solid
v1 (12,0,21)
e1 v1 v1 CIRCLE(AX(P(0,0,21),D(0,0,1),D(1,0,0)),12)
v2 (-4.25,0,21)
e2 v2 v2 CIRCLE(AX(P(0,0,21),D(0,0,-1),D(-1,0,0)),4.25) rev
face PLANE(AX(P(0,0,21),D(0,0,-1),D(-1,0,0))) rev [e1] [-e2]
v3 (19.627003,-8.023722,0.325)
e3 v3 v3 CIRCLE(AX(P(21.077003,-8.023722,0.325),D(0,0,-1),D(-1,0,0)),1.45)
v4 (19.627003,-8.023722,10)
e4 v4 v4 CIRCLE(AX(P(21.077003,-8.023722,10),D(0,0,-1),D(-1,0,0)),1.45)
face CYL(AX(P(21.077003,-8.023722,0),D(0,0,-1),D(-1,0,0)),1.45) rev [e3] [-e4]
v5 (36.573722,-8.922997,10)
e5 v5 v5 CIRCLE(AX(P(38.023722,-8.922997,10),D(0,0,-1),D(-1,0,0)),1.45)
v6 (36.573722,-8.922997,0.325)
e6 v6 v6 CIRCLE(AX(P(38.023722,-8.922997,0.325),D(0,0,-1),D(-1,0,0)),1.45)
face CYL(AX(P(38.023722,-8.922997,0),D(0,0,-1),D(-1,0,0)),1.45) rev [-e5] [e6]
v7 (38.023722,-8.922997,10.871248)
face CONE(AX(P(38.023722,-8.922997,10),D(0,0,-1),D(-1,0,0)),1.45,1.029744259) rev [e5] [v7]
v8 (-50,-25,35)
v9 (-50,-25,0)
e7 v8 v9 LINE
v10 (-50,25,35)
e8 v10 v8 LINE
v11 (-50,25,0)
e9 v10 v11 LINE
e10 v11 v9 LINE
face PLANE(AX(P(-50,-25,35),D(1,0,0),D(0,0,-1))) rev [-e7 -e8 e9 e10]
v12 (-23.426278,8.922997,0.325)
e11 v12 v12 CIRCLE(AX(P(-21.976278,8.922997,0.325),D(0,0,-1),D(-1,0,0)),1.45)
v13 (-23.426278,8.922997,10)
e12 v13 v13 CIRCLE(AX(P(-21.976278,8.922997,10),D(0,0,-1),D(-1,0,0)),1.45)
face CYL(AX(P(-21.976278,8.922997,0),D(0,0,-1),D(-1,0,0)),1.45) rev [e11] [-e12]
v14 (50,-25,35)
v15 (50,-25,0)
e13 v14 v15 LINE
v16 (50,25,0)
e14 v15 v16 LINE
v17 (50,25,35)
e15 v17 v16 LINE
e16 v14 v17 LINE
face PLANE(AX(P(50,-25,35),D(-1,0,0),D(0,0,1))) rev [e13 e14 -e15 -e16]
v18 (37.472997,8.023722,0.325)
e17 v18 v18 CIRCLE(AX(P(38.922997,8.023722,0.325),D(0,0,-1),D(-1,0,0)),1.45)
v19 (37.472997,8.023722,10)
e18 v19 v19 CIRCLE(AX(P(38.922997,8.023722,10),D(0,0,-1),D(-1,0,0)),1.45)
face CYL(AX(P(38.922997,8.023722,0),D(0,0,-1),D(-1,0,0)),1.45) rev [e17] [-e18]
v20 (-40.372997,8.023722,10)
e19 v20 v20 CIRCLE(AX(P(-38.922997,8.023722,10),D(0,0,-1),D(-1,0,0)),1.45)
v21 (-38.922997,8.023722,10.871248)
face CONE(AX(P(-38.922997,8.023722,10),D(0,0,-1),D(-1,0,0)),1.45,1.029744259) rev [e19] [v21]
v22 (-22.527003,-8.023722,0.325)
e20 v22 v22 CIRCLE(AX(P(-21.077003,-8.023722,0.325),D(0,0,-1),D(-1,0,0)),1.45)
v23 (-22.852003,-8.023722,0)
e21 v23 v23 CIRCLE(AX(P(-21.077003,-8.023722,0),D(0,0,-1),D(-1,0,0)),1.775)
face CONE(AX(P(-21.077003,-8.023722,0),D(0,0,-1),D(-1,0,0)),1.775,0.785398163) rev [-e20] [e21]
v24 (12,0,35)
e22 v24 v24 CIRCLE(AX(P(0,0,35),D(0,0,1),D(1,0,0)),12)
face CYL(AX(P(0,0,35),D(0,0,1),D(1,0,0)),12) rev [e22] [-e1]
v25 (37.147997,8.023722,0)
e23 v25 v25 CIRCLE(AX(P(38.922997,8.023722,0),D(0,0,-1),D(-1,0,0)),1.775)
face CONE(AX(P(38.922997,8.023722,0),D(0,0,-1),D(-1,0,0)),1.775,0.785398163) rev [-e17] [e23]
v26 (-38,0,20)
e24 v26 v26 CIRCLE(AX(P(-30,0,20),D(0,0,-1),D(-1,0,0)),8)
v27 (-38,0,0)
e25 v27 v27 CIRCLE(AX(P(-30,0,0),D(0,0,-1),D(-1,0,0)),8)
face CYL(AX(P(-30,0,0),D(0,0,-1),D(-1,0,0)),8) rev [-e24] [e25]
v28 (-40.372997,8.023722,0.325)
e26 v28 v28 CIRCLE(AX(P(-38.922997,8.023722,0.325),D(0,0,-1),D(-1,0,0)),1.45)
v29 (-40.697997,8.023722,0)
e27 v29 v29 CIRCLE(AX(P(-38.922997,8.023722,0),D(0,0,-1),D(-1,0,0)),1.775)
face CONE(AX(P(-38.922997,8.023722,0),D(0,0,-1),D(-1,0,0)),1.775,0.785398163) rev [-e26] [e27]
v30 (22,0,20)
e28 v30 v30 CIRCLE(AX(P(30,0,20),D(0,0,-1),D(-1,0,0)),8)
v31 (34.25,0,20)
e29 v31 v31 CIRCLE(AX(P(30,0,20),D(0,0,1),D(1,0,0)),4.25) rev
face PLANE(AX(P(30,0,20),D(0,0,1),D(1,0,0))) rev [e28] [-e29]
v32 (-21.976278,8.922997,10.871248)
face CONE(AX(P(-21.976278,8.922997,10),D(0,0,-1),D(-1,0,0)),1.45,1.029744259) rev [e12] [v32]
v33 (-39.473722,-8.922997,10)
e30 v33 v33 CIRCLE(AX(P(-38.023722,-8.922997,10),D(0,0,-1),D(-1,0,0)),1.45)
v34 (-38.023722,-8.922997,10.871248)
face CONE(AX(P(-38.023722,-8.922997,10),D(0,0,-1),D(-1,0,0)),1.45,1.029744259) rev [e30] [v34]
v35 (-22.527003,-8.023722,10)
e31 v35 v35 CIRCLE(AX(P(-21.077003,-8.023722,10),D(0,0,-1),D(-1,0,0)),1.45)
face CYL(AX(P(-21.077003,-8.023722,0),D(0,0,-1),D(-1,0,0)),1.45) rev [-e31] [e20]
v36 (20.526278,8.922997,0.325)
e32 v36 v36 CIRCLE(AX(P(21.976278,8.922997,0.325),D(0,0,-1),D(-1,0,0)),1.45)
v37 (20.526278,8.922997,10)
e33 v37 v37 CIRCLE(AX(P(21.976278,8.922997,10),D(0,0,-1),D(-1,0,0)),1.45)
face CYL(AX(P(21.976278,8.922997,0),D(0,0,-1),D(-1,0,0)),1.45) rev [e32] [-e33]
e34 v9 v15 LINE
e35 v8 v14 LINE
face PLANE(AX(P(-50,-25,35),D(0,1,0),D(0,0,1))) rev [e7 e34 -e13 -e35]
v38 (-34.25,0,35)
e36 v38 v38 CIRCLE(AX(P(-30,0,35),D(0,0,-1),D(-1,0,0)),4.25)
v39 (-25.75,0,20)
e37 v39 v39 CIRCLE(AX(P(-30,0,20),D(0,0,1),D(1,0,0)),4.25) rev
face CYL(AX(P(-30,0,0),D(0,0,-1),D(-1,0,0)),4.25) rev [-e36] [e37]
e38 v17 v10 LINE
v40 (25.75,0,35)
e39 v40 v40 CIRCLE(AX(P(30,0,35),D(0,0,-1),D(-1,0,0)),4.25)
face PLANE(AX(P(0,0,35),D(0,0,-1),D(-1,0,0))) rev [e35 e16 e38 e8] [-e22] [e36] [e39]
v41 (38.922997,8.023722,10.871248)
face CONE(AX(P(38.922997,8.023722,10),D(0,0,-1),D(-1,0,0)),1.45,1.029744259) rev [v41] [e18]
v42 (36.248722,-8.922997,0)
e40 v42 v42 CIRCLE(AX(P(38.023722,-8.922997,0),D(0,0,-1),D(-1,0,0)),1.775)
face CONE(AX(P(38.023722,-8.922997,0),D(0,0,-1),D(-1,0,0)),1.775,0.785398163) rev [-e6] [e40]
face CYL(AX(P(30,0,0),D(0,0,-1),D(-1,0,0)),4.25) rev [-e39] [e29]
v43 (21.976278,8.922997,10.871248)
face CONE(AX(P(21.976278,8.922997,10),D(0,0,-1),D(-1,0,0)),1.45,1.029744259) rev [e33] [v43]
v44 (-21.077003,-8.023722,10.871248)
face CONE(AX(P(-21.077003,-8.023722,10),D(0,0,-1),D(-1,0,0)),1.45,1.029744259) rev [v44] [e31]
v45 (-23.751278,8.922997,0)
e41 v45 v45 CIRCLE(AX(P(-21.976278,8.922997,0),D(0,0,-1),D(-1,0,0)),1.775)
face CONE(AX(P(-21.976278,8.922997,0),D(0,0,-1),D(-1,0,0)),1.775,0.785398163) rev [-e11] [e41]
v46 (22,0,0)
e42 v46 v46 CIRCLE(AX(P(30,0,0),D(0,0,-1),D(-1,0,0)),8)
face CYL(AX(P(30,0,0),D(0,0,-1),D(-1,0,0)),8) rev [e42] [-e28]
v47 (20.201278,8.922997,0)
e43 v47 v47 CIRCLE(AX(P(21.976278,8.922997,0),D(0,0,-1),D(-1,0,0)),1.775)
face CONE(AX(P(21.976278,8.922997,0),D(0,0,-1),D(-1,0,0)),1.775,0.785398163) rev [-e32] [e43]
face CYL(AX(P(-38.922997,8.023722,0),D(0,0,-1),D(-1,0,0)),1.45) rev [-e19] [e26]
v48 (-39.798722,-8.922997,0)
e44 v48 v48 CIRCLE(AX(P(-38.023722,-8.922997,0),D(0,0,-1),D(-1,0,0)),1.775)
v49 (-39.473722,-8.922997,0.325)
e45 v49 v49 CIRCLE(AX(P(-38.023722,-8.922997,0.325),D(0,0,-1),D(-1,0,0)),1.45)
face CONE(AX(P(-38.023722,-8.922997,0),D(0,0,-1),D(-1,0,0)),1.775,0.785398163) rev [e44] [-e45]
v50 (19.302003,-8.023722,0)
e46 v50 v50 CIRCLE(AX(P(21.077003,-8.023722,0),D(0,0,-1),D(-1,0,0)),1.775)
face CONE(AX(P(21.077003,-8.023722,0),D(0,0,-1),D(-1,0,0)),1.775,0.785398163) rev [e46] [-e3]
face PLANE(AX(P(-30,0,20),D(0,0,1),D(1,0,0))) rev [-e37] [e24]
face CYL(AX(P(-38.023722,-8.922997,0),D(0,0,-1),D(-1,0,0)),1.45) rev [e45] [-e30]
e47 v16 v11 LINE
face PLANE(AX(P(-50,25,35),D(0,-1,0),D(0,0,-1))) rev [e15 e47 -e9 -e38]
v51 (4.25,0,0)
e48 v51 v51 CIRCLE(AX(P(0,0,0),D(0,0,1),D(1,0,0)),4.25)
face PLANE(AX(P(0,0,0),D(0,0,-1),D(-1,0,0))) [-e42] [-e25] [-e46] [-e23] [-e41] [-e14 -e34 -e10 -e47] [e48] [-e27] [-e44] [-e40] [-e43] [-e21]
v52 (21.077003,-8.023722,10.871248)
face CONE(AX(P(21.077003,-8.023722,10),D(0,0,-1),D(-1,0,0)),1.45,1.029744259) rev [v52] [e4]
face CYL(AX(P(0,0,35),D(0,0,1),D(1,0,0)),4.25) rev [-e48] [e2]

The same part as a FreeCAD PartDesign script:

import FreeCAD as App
import Part
import Sketcher
Q = App.Units.Quantity


def add_polygon(sketch, points):
    """Adds a closed chain of lines whose ends are joined by coincident constraints."""
    first, n = sketch.GeometryCount, len(points)
    for a, b in zip(points, points[1:] + points[:1]):
        sketch.addGeometry(Part.LineSegment(App.Vector(*a, 0), App.Vector(*b, 0)), False)
    for i in range(n):
        sketch.addConstraint(Sketcher.Constraint("Coincident", first + i, 2, first + (i + 1) % n, 1))

doc = App.newDocument("Part")
body = doc.addObject("PartDesign::Body", "Body")

sketch1 = body.newObject("Sketcher::SketchObject", "Sketch")
sketch1.AttachmentSupport = (doc.getObject("XY_Plane"), [""])
sketch1.MapMode = "FlatFace"
add_polygon(sketch1, [(-50, 25), (-50, -25), (50, -25), (50, 25)])
sketch1.addConstraint([
    Sketcher.Constraint("Vertical", 0),
    Sketcher.Constraint("Horizontal", 1),
    Sketcher.Constraint("Vertical", 2),
    Sketcher.Constraint("Horizontal", 3),
    Sketcher.Constraint("Symmetric", 0, 2, 2, 2, -1, 1),
    Sketcher.Constraint("DistanceX", 1, 1, 1, 2, Q("100 mm")),
    Sketcher.Constraint("DistanceY", 0, 2, 0, 1, Q("50 mm")),
])
pad1 = body.newObject("PartDesign::Pad", "Pad")
pad1.Profile = sketch1
pad1.Length = 35

sketch2 = body.newObject("Sketcher::SketchObject", "Sketch001")
sketch2.AttachmentSupport = (doc.getObject("XY_Plane"), [""])
sketch2.MapMode = "FlatFace"
sketch2.AttachmentOffset = App.Placement(App.Vector(0, 0, 35), App.Rotation())
sketch2.addGeometry(Part.Circle(App.Vector(0, 0, 0), App.Vector(0, 0, 1), 4.2), False)
sketch2.addConstraint([
    Sketcher.Constraint("Coincident", 0, 3, -1, 1),
    Sketcher.Constraint("Diameter", 0, Q("8.5 mm")),
])
doc.recompute()
hole = body.newObject("PartDesign::Hole", "Hole")
hole.Profile = sketch2
hole.ThreadType = "None"
hole.Diameter = 8.5
hole.DepthType = "ThroughAll"

sketch3 = body.newObject("Sketcher::SketchObject", "Sketch002")
sketch3.AttachmentSupport = (doc.getObject("XY_Plane"), [""])
sketch3.MapMode = "FlatFace"
sketch3.AttachmentOffset = App.Placement(App.Vector(0, 0, 35), App.Rotation())
sketch3.addGeometry(Part.Circle(App.Vector(0, 0, 0), App.Vector(0, 0, 1), 12), False)
sketch3.addConstraint([
    Sketcher.Constraint("Coincident", 0, 3, -1, 1),
    Sketcher.Constraint("Diameter", 0, Q("24 mm")),
])
doc.recompute()
hole2 = body.newObject("PartDesign::Hole", "Hole001")
hole2.Profile = sketch3
hole2.ThreadType = "None"
hole2.Diameter = 24
hole2.DepthType = "Dimension"
hole2.Depth = 14
hole2.DrillPoint = "Flat"

sketch4 = body.newObject("Sketcher::SketchObject", "Sketch003")
sketch4.AttachmentSupport = (doc.getObject("XY_Plane"), [""])
sketch4.MapMode = "FlatFace"
sketch4.addGeometry(Part.Circle(App.Vector(-30, 0, 0), App.Vector(0, 0, 1), 4.2), False)
sketch4.addConstraint([
    Sketcher.Constraint("PointOnObject", 0, 3, -1),
    Sketcher.Constraint("Diameter", 0, Q("8.5 mm")),
    Sketcher.Constraint("DistanceX", 0, 3, -1, 1, Q("30 mm")),
])
doc.recompute()
hole3 = body.newObject("PartDesign::Hole", "Hole002")
hole3.Profile = sketch4
hole3.ThreadType = "None"
hole3.Diameter = 8.5
hole3.DepthType = "ThroughAll"
hole3.Reversed = True
doc.recompute()

mirrored = body.newObject("PartDesign::Mirrored", "Mirrored")
mirrored.Originals = [hole3]
mirrored.MirrorPlane = (doc.getObject("YZ_Plane"), [""])
body.Tip = mirrored

sketch5 = body.newObject("Sketcher::SketchObject", "Sketch004")
sketch5.AttachmentSupport = (doc.getObject("XY_Plane"), [""])
sketch5.MapMode = "FlatFace"
sketch5.addGeometry([
    Part.Circle(App.Vector(-30, 0, 0), App.Vector(0, 0, 1), 8),
    Part.Circle(App.Vector(30, 0, 0), App.Vector(0, 0, 1), 8),
], False)
sketch5.addConstraint([
    Sketcher.Constraint("Equal", 0, 1),
    Sketcher.Constraint("Symmetric", 0, 3, 1, 3, -1, 1),
    Sketcher.Constraint("PointOnObject", 0, 3, -1),
    Sketcher.Constraint("Diameter", 0, Q("16 mm")),
    Sketcher.Constraint("DistanceX", 0, 3, -1, 1, Q("30 mm")),
])
doc.recompute()
hole4 = body.newObject("PartDesign::Hole", "Hole003")
hole4.Profile = sketch5
hole4.ThreadType = "None"
hole4.Diameter = 16
hole4.DepthType = "Dimension"
hole4.Depth = 20
hole4.DrillPoint = "Flat"
hole4.Reversed = True

sketch6 = body.newObject("Sketcher::SketchObject", "Sketch005")
sketch6.AttachmentSupport = (doc.getObject("XY_Plane"), [""])
sketch6.MapMode = "FlatFace"
sketch6.addGeometry([
    Part.Circle(App.Vector(-21.1, -8, 0), App.Vector(0, 0, 1), 1.4),
    Part.Circle(App.Vector(-38, -8.9, 0), App.Vector(0, 0, 1), 1.4),
    Part.Circle(App.Vector(-38.9, 8, 0), App.Vector(0, 0, 1), 1.4),
    Part.Circle(App.Vector(-22, 8.9, 0), App.Vector(0, 0, 1), 1.4),
    Part.Circle(App.Vector(21.1, -8, 0), App.Vector(0, 0, 1), 1.4),
    Part.Circle(App.Vector(38, -8.9, 0), App.Vector(0, 0, 1), 1.4),
    Part.Circle(App.Vector(38.9, 8, 0), App.Vector(0, 0, 1), 1.4),
    Part.Circle(App.Vector(22, 8.9, 0), App.Vector(0, 0, 1), 1.4),
], False)
sketch6.addConstraint([
    Sketcher.Constraint("Equal", 0, 1),
    Sketcher.Constraint("Equal", 1, 2),
    Sketcher.Constraint("Equal", 2, 3),
    Sketcher.Constraint("Equal", 3, 4),
    Sketcher.Constraint("Equal", 4, 5),
    Sketcher.Constraint("Equal", 5, 6),
    Sketcher.Constraint("Equal", 6, 7),
    Sketcher.Constraint("Symmetric", 0, 3, 4, 3, -2),
    Sketcher.Constraint("Symmetric", 1, 3, 5, 3, -2),
    Sketcher.Constraint("Symmetric", 2, 3, 6, 3, -2),
    Sketcher.Constraint("Symmetric", 3, 3, 7, 3, -2),
    Sketcher.Constraint("Diameter", 0, Q("2.9 mm")),
    Sketcher.Constraint("DistanceX", 2, 3, 4, 3, Q("60 mm")),
    Sketcher.Constraint("DistanceX", 3, 3, 5, 3, Q("60 mm")),
    Sketcher.Constraint("DistanceX", 1, 3, 0, 3, Q("16.94672 mm")),
    Sketcher.Constraint("DistanceY", 1, 3, 2, 3, Q("16.94672 mm")),
    Sketcher.Constraint("DistanceY", 0, 3, 3, 3, Q("16.94672 mm")),
    Sketcher.Constraint("DistanceX", 0, 3, -1, 1, Q("21.077003 mm")),
    Sketcher.Constraint("DistanceY", 0, 3, -1, 1, Q("8.023722 mm")),
    Sketcher.Constraint("DistanceY", 1, 3, -1, 1, Q("8.922997 mm")),
])
doc.recompute()
hole5 = body.newObject("PartDesign::Hole", "Hole004")
hole5.Profile = sketch6
hole5.ThreadType = "None"
hole5.Diameter = 2.9
hole5.DepthType = "Dimension"
hole5.Depth = 10
hole5.DrillPoint = "Angled"
hole5.DrillPointAngle = 118
hole5.HoleCutType = "Countersink"
hole5.HoleCutDiameter = 3.55
hole5.HoleCutCountersinkAngle = 90
hole5.Reversed = True

doc.recompute()
